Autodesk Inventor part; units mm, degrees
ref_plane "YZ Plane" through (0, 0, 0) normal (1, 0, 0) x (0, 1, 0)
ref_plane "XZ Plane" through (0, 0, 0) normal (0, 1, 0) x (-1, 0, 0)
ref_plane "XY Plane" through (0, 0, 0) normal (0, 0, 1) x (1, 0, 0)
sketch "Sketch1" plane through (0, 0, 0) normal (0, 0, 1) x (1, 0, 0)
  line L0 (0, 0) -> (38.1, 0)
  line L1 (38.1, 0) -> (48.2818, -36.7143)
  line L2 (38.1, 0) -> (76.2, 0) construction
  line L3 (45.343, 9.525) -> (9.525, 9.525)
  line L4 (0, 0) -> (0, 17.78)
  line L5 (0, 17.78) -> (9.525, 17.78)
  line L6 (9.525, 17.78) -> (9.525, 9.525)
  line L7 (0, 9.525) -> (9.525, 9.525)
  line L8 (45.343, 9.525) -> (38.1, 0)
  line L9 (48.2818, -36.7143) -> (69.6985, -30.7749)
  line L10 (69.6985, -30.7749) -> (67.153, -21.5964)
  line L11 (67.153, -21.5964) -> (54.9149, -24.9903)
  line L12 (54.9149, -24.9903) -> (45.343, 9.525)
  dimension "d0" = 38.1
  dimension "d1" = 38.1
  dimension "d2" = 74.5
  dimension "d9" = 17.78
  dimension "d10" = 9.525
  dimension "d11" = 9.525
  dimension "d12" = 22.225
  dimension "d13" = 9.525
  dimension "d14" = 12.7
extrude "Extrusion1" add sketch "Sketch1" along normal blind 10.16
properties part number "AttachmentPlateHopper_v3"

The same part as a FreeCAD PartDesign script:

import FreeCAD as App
import Part
import Sketcher
from FreeCAD import Vector
Q = App.Units.Quantity


def add_polygon(sketch, points):
    """Adds a closed chain of lines whose ends are joined by coincident constraints."""
    first, n = sketch.GeometryCount, len(points)
    for a, b in zip(points, points[1:] + points[:1]):
        sketch.addGeometry(Part.LineSegment(App.Vector(*a, 0), App.Vector(*b, 0)), False)
    for i in range(n):
        sketch.addConstraint(Sketcher.Constraint("Coincident", first + i, 2, first + (i + 1) % n, 1))

doc = App.newDocument("Part")
body = doc.addObject("PartDesign::Body", "Body")

# Sketch on XY plane
sketch1 = doc.addObject("Sketcher::SketchObject", "Sketch")
body.addObject(sketch1)
sketch1.AttachmentSupport = (doc.XY_Plane, [""])
sketch1.MapMode = "FlatFace"
add_polygon(sketch1, [(0, 0), (38, 0), (48, -37), (70, -31), (67, -22), (55, -25), (45, 10), (10, 10), (10, 18), (0, 18)])  # lines 0-9
sketch1.addConstraint(Sketcher.Constraint("Horizontal", 0))
sketch1.addConstraint(Sketcher.Constraint("Horizontal", 6))
sketch1.addConstraint(Sketcher.Constraint("Vertical", 7))
sketch1.addConstraint(Sketcher.Constraint("Horizontal", 8))
sketch1.addConstraint(Sketcher.Constraint("Vertical", 9))
sketch1.addConstraint(Sketcher.Constraint("Coincident", 9, 2, -1, 1))
sketch1.addConstraint(Sketcher.Constraint("Perpendicular", 1, 2))
sketch1.addConstraint(Sketcher.Constraint("Perpendicular", 2, 3))
sketch1.addConstraint(Sketcher.Constraint("Perpendicular", 3, 4))
sketch1.addConstraint(Sketcher.Constraint("Perpendicular", 4, 5))
sketch1.addConstraint(Sketcher.Constraint("DistanceX", 0, 1, 0, 2, Q("1.5 in")))
sketch1.addConstraint(Sketcher.Constraint("DistanceY", 9, 2, 9, 1, Q("0.7 in")))
sketch1.addConstraint(Sketcher.Constraint("Distance", 1, Q("1.5 in")))
sketch1.addConstraint(Sketcher.Constraint("Distance", 4, Q("0.5 in")))
sketch1.addConstraint(Sketcher.Constraint("Angle", 1, Q("-74.5 deg")))
sketch1.addConstraint(Sketcher.Constraint("DistanceX", 8, 2, 8, 1, Q("0.375 in")))
sketch1.addConstraint(Sketcher.Constraint("Distance", 2, Q("0.875 in")))
sketch1.addConstraint(Sketcher.Constraint("Distance", 3, Q("0.375 in")))
sketch1.addConstraint(Sketcher.Constraint("DistanceY", -1, 1, 5, 2, Q("0.375 in")))
pad1 = doc.addObject("PartDesign::Pad", "Pad")
body.addObject(pad1)
pad1.Profile = sketch1
pad1.Length = Q("0.4 in")

doc.recompute()
